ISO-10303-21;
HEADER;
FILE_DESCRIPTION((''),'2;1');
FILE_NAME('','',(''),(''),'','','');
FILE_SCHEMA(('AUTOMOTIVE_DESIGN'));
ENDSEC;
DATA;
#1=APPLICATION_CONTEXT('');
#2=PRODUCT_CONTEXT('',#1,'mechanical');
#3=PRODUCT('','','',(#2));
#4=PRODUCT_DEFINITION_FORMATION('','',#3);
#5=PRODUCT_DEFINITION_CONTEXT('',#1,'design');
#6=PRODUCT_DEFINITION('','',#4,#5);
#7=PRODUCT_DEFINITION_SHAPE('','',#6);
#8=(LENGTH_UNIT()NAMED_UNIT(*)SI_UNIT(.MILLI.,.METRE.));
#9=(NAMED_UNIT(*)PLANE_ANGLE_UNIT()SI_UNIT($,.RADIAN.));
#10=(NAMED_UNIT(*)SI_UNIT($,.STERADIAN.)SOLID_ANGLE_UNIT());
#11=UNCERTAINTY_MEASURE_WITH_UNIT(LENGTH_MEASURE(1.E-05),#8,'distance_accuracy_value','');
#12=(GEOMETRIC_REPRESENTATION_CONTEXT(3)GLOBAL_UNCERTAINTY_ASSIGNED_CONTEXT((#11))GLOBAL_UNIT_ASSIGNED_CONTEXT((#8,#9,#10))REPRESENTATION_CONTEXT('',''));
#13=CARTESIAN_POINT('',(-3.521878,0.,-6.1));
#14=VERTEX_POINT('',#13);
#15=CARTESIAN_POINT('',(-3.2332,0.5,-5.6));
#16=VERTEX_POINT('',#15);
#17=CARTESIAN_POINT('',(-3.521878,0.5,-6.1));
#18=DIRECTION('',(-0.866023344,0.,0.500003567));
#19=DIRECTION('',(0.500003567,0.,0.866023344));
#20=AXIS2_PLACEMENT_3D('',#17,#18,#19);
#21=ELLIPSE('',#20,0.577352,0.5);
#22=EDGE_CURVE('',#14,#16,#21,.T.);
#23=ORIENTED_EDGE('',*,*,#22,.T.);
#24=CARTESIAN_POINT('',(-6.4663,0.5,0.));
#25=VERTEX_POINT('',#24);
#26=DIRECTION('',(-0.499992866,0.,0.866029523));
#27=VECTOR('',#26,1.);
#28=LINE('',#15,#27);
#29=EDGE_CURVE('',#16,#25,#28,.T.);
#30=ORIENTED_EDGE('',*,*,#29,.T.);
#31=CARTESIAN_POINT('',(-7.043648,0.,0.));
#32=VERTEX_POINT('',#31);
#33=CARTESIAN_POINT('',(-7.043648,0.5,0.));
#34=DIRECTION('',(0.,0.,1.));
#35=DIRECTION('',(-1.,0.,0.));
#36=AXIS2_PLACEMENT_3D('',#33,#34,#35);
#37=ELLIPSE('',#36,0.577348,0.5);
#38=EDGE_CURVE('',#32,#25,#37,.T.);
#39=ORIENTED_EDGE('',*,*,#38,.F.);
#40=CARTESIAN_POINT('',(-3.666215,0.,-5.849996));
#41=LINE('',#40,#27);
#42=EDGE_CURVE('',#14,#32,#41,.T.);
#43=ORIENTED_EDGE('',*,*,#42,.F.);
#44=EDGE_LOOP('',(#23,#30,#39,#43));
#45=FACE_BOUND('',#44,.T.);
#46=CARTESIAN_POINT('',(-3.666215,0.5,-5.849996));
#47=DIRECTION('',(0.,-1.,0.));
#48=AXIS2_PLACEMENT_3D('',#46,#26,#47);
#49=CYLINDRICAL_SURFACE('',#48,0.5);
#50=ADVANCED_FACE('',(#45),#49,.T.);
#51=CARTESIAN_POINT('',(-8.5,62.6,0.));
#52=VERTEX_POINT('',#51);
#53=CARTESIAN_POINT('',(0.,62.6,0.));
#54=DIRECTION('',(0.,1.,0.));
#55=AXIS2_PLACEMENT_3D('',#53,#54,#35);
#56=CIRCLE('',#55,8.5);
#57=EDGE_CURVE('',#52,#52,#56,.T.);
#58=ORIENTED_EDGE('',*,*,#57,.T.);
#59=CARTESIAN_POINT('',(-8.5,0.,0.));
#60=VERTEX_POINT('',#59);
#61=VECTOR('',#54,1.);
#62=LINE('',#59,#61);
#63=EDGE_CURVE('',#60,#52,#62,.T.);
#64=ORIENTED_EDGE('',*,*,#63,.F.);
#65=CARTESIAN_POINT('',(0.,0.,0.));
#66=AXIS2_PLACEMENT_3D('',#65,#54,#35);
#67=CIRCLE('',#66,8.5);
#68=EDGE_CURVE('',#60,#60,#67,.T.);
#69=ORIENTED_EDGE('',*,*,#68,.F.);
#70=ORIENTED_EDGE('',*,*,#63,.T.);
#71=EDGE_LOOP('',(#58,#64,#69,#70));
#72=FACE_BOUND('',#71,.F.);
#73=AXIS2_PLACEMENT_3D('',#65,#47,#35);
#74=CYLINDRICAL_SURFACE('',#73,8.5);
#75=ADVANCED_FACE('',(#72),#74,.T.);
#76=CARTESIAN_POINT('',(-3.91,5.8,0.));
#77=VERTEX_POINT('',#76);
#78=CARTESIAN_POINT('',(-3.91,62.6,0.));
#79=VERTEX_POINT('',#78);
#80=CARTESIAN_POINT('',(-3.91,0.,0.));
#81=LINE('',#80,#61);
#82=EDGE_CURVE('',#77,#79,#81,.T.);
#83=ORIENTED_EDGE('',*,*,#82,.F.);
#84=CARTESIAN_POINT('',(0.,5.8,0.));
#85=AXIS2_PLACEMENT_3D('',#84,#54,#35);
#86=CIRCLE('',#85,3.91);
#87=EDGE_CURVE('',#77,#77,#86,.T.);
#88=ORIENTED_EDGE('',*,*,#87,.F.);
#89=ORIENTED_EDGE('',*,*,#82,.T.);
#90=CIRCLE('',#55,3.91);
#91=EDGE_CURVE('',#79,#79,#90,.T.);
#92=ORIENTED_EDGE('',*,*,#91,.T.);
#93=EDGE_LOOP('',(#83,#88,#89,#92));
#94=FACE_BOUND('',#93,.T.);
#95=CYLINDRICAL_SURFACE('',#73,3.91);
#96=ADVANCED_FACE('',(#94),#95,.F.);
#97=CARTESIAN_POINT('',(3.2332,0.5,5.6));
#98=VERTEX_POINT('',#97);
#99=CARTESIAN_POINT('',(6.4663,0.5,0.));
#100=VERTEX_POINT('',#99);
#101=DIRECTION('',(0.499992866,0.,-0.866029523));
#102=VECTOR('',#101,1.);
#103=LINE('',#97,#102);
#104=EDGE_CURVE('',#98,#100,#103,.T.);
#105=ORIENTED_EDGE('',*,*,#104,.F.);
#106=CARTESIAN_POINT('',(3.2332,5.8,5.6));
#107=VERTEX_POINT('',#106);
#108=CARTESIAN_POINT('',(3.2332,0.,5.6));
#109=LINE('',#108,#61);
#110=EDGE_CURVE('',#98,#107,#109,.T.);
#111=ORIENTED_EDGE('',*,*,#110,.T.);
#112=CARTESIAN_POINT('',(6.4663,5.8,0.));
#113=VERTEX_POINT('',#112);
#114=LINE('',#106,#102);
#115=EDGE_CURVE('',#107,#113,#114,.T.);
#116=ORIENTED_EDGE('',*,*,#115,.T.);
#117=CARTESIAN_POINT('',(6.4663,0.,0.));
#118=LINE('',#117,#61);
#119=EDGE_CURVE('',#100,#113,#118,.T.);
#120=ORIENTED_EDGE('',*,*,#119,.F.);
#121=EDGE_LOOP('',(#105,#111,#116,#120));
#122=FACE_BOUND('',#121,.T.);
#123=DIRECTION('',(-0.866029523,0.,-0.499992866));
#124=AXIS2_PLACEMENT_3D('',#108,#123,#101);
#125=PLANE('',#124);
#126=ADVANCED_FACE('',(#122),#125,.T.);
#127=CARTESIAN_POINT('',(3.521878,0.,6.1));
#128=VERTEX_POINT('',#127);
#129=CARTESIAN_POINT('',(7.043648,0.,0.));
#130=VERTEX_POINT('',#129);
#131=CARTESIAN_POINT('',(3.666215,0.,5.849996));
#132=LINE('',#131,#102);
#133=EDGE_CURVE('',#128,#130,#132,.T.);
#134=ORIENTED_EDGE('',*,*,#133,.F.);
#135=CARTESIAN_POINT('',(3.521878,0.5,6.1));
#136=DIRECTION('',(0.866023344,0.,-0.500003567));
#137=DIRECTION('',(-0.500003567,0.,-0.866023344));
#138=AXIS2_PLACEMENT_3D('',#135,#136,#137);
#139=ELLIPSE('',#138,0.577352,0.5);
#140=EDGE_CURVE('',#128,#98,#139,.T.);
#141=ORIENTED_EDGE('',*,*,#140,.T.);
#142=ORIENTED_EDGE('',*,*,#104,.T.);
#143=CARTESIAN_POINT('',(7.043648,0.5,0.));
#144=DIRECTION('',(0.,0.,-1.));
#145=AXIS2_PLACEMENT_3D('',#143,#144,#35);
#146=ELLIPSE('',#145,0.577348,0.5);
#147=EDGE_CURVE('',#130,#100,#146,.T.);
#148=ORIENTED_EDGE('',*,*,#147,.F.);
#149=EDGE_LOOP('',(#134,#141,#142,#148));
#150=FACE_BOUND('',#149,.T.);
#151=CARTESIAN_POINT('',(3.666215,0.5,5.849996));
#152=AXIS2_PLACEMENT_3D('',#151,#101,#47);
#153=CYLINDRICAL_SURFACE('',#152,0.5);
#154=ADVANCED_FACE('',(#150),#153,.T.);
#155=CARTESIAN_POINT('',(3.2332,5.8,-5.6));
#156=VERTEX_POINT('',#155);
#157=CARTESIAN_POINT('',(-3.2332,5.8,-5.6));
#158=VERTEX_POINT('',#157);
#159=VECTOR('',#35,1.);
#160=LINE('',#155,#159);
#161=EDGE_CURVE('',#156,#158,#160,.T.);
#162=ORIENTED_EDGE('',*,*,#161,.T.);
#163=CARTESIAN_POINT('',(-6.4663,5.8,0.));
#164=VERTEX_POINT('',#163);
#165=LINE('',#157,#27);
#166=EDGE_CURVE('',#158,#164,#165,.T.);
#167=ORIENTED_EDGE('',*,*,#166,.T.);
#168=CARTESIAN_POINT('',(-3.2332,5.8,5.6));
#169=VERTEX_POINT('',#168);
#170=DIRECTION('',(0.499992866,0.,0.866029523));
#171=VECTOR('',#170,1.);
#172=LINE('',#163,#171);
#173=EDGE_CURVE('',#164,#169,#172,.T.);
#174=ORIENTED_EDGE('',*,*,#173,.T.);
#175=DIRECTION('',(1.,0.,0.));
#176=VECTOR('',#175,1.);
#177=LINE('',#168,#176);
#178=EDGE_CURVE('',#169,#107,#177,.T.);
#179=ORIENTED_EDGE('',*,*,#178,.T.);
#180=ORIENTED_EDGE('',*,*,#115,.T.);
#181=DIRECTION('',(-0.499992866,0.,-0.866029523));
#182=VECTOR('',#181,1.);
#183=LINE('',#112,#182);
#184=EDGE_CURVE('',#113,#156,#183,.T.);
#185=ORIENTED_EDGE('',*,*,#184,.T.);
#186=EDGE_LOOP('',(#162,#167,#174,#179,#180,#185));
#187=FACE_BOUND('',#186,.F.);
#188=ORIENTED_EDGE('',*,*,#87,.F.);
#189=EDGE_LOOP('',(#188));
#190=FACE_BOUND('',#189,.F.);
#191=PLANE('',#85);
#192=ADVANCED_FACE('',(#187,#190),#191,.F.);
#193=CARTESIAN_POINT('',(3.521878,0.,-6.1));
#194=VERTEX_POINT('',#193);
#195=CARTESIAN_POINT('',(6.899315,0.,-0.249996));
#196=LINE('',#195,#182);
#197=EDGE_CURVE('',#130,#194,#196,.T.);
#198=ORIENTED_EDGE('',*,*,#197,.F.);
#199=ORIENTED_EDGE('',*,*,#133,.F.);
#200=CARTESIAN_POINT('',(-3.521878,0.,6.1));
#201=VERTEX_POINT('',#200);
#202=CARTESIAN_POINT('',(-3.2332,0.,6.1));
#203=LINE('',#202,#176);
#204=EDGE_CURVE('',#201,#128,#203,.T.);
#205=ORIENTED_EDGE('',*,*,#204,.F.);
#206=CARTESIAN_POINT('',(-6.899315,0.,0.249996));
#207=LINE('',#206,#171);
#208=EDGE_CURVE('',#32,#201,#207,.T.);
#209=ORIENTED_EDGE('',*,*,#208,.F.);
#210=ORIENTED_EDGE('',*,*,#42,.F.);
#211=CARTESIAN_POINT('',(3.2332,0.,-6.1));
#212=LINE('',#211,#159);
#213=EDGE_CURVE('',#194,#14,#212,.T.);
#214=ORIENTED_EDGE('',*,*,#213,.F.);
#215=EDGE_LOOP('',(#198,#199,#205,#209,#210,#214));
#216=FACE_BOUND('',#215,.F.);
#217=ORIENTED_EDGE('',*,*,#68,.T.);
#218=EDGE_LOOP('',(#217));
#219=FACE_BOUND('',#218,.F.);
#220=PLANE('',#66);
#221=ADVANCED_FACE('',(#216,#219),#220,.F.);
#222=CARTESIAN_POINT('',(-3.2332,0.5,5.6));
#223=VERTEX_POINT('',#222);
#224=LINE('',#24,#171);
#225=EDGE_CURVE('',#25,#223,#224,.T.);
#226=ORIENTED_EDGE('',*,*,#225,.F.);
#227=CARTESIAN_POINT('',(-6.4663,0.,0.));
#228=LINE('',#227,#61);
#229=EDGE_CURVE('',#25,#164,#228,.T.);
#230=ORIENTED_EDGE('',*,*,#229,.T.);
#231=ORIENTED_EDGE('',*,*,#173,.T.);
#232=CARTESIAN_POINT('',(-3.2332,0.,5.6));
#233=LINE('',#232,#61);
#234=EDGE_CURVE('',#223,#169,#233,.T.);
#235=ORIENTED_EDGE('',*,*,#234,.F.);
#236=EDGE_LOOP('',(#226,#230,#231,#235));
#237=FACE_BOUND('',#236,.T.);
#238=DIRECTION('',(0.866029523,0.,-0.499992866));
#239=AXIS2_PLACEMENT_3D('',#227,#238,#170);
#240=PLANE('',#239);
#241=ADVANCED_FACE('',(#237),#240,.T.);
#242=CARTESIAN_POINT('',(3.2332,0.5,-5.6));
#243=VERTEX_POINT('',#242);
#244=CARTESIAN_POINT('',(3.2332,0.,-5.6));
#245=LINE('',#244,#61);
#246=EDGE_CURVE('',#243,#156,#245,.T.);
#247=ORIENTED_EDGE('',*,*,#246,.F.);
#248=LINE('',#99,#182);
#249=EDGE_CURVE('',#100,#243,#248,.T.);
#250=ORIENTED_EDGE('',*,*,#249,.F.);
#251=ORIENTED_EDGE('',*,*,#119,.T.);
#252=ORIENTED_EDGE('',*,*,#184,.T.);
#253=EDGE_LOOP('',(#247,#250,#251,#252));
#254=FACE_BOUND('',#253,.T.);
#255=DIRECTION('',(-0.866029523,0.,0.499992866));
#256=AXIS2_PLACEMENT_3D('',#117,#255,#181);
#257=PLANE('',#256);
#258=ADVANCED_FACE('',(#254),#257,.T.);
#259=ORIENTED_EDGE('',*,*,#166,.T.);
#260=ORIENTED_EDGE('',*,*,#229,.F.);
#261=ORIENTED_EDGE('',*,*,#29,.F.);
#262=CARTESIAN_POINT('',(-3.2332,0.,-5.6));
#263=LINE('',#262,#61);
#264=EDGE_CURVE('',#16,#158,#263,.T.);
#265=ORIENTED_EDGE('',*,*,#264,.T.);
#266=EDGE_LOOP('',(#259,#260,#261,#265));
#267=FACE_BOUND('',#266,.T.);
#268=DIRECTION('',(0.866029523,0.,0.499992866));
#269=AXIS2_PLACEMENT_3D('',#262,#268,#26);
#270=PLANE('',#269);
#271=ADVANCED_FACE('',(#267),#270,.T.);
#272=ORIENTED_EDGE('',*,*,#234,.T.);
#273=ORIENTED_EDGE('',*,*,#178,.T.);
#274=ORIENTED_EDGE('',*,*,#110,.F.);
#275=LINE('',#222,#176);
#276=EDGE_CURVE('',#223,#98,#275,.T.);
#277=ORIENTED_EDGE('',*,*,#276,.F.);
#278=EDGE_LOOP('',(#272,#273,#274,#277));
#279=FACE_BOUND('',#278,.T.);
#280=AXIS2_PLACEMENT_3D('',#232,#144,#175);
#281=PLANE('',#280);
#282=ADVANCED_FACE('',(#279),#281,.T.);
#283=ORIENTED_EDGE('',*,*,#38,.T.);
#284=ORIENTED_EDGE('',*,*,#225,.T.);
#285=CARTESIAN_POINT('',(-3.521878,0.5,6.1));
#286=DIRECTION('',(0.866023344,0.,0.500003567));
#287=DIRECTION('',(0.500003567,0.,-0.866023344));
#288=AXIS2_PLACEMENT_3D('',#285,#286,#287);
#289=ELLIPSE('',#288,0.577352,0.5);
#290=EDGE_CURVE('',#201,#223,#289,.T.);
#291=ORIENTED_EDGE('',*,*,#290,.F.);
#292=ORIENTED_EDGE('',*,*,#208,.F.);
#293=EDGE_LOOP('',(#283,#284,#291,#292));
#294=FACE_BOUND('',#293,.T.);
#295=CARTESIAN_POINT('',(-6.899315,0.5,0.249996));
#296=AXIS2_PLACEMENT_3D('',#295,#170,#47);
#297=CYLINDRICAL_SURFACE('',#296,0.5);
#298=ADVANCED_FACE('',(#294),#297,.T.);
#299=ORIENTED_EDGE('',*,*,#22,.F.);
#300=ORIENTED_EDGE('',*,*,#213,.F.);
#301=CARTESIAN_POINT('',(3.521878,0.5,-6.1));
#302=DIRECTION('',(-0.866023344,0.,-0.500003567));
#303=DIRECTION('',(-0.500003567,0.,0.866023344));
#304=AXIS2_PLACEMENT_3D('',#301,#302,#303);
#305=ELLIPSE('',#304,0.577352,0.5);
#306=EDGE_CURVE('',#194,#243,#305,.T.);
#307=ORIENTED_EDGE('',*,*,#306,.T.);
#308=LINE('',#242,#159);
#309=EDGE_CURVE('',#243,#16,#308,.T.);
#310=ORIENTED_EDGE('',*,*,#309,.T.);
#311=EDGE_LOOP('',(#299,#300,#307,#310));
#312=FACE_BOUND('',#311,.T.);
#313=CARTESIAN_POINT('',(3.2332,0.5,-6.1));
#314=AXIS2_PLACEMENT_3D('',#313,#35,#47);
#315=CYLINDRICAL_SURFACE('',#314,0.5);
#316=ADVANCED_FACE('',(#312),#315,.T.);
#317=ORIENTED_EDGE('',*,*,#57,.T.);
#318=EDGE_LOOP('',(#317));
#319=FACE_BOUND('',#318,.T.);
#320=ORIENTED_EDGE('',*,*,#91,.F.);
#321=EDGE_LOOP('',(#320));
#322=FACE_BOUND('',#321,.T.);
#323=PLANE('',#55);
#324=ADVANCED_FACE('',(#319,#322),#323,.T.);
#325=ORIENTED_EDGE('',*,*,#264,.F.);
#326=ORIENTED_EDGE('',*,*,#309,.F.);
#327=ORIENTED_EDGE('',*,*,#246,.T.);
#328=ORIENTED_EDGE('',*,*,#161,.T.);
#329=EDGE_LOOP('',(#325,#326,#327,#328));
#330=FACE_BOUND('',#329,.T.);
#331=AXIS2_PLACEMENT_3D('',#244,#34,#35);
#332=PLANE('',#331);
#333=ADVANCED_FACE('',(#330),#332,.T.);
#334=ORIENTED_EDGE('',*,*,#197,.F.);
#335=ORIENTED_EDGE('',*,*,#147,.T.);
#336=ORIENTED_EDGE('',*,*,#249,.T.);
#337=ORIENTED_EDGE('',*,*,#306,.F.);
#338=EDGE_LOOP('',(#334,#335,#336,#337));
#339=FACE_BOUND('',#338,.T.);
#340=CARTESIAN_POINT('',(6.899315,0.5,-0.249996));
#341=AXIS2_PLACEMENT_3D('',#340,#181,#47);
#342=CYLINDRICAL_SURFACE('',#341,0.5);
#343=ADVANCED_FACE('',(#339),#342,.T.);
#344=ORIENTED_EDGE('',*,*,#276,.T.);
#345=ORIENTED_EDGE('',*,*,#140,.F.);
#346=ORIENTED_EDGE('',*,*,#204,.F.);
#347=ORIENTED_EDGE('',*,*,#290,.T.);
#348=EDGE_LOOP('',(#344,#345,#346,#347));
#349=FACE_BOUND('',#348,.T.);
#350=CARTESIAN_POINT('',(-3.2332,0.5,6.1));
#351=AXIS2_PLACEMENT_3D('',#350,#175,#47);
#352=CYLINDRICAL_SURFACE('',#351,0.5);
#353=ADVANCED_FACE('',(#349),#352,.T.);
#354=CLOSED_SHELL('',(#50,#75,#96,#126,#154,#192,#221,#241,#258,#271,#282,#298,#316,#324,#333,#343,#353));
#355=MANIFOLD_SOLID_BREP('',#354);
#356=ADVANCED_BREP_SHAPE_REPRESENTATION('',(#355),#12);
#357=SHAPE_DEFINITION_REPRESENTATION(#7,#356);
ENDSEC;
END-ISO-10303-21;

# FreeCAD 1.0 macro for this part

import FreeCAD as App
import Part
import Sketcher

V = App.Vector
Q = App.Units.Quantity


def edges_at(feature, points):
    """Names of the edges that pass closest to the given points."""
    edges = feature.Shape.Edges
    near = lambda p: min(range(len(edges)), key=lambda i: edges[i].distToShape(Part.Vertex(*p))[0])
    return sorted({f"Edge{near(p) + 1}" for p in points})


def add_polygon(sketch, points):
    """Adds a closed chain of lines whose ends are joined by coincident constraints."""
    first, n = sketch.GeometryCount, len(points)
    for a, b in zip(points, points[1:] + points[:1]):
        sketch.addGeometry(Part.LineSegment(App.Vector(*a, 0), App.Vector(*b, 0)), False)
    for i in range(n):
        sketch.addConstraint(Sketcher.Constraint("Coincident", first + i, 2, first + (i + 1) % n, 1))

doc = App.newDocument("Part")
body = doc.addObject("PartDesign::Body", "Body")

sketch1 = body.newObject("Sketcher::SketchObject", "Sketch")
sketch1.AttachmentSupport = (doc.getObject("XZ_Plane"), [""])
sketch1.MapMode = "FlatFace"
sketch1.addGeometry(Part.Circle(V(0, 0, 0), V(0, 0, 1), 8.5), False)
sketch1.addGeometry(Part.Circle(V(0, 0, 0), V(0, 0, 1), 3.9), False)
sketch1.addConstraint(Sketcher.Constraint("Coincident", 0, 3, -1, 1))
sketch1.addConstraint(Sketcher.Constraint("Coincident", 1, 3, -1, 1))
sketch1.addConstraint(Sketcher.Constraint("Diameter", 0, 17.0))
sketch1.addConstraint(Sketcher.Constraint("Diameter", 1, 7.82))
pad1 = body.newObject("PartDesign::Pad", "Pad")
pad1.Profile = sketch1
pad1.Length = 62.6
pad1.Reversed = True

sketch2 = body.newObject("Sketcher::SketchObject", "Sketch001")
sketch2.AttachmentSupport = (doc.getObject("XZ_Plane"), [""])
sketch2.MapMode = "FlatFace"
add_polygon(sketch2, [(3.2, -5.6), (-3.2, -5.6), (-6.5, 0), (-3.2, 5.6), (3.2, 5.6), (6.5, 0)])
sketch2.addGeometry(Part.Circle(V(0, 0, 0), V(0, 0, 1), 3.9), False)
sketch2.addConstraint(Sketcher.Constraint("Horizontal", 0))
sketch2.addConstraint(Sketcher.Constraint("Horizontal", 3))
sketch2.addConstraint(Sketcher.Constraint("Coincident", 6, 3, -1, 1))
sketch2.addConstraint(Sketcher.Constraint("Symmetric", 0, 2, 3, 2, -1, 1))
sketch2.addConstraint(Sketcher.Constraint("Symmetric", 1, 2, 4, 2, -1, 1))
sketch2.addConstraint(Sketcher.Constraint("PointOnObject", 1, 2, -1))
sketch2.addConstraint(Sketcher.Constraint("Parallel", 2, 5))
sketch2.addConstraint(Sketcher.Constraint("Vertical", 0, 2, 2, 2))
sketch2.addConstraint(Sketcher.Constraint("Diameter", 6, 7.82))
sketch2.addConstraint(Sketcher.Constraint("Angle", 1, Q("119.9995 deg")))
sketch2.addConstraint(Sketcher.Constraint("DistanceY", 0, 2, -1, 1, 5.6))
sketch2.addConstraint(Sketcher.Constraint("DistanceX", 0, 2, 0, 1, 6.4664))
pocket1 = body.newObject("PartDesign::Pocket", "Pocket")
pocket1.Profile = sketch2
pocket1.Length = 5.8
doc.recompute()

fillet = body.newObject("PartDesign::Fillet", "Fillet")
fillet.Base = (pocket1, edges_at(pocket1, [
    (-4.85, 0, -2.8),
    (0, 0, -5.6),
    (4.85, 0, -2.8),
    (4.85, 0, 2.8),
    (0, 0, 5.6),
    (-4.85, 0, 2.8),
]))
fillet.Radius = 0.5

doc.recompute()
